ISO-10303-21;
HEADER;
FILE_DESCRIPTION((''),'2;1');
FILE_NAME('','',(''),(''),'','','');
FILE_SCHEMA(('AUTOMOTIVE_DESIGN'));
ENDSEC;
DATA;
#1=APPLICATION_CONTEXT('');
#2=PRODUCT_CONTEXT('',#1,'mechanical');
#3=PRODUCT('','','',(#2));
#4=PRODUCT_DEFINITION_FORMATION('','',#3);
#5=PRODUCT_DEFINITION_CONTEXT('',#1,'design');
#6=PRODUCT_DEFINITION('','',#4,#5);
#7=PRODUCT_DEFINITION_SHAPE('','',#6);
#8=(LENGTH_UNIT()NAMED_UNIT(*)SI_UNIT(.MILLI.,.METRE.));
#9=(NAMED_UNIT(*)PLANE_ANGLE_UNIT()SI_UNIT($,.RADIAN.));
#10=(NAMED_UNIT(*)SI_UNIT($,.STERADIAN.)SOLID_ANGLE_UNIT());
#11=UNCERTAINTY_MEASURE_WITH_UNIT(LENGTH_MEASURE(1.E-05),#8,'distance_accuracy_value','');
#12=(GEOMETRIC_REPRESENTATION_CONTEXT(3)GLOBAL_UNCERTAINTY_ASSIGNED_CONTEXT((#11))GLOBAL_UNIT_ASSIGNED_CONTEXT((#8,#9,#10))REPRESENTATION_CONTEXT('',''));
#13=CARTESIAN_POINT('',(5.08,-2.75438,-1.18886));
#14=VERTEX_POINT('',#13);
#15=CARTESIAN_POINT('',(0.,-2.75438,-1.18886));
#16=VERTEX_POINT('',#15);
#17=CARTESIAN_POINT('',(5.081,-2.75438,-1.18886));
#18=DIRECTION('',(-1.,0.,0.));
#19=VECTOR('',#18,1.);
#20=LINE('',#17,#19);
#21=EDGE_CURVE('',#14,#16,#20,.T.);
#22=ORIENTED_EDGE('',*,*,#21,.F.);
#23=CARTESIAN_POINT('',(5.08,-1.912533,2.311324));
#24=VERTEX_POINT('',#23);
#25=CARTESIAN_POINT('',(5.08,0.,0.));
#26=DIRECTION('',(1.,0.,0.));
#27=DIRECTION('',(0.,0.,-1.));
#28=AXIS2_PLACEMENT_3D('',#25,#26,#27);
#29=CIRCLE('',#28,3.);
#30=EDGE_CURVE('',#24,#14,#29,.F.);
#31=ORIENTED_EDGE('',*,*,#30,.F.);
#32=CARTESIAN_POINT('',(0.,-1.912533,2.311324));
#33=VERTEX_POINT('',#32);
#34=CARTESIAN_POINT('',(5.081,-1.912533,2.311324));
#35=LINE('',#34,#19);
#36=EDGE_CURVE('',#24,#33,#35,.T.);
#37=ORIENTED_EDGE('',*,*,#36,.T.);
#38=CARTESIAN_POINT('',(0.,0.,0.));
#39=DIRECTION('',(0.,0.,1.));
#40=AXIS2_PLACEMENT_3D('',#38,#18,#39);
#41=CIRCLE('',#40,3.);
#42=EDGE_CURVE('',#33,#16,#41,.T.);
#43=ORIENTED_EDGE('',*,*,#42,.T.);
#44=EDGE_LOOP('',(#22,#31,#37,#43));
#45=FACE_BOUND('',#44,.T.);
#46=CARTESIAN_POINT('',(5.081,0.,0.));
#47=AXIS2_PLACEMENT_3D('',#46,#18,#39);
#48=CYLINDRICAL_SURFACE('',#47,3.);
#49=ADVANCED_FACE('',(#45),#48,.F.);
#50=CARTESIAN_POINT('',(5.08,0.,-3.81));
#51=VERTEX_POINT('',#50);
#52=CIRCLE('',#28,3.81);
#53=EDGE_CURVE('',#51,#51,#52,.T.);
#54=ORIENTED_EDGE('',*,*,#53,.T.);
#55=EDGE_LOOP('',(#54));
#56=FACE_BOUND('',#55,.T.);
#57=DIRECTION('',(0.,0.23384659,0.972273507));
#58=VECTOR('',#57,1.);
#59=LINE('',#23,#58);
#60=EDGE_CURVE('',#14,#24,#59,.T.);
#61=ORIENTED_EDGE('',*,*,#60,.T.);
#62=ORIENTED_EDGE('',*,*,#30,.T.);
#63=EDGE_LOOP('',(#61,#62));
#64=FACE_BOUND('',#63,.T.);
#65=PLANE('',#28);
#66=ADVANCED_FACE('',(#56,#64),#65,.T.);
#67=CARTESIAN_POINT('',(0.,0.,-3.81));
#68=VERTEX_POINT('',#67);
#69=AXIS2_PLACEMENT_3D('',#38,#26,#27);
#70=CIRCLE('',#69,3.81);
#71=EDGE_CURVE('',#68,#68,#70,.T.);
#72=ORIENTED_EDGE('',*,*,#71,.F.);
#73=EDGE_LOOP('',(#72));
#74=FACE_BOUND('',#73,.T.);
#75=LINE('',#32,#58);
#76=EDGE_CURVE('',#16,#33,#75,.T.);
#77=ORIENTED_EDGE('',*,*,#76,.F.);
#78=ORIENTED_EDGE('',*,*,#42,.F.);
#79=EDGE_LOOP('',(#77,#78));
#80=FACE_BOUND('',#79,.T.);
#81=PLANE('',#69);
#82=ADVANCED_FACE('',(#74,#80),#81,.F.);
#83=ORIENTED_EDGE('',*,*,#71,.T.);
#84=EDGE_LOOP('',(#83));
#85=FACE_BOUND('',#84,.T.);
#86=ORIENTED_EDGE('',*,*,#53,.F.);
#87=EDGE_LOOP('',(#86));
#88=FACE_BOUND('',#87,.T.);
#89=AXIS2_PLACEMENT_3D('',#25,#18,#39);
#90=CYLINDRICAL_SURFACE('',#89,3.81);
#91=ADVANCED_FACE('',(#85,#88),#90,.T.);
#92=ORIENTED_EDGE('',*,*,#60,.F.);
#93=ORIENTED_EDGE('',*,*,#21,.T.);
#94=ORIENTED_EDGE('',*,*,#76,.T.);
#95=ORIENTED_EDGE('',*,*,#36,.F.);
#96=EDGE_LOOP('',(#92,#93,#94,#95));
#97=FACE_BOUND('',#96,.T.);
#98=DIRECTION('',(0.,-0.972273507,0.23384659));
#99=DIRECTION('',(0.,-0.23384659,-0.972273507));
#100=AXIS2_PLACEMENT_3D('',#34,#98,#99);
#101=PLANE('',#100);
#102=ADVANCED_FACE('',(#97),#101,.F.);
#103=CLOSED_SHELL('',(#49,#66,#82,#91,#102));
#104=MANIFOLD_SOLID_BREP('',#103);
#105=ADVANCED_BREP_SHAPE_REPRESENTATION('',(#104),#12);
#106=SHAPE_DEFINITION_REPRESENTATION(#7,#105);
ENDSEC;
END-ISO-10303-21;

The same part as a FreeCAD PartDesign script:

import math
import FreeCAD as App
import Part
import Sketcher
from FreeCAD import Vector

doc = App.newDocument("Part")
body = doc.addObject("PartDesign::Body", "Body")

# Sketch on YZ plane
sketch1 = body.newObject("Sketcher::SketchObject", "Sketch")
sketch1.AttachmentSupport = (doc.getObject("YZ_Plane"), [""])
sketch1.MapMode = "FlatFace"
sketch1.addGeometry(Part.Circle(Vector(0, 0, 0), Vector(0, 0, 1), 3.81), False)
sketch1.addConstraint(Sketcher.Constraint("Coincident", 0, 3, -1, 1))
sketch1.addConstraint(Sketcher.Constraint("Diameter", 0, 7.62))
pad1 = body.newObject("PartDesign::Pad", "Pad")
pad1.Profile = sketch1
pad1.Length = 5.08

# Sketch on YZ plane
sketch2 = body.newObject("Sketcher::SketchObject", "Sketch001")
sketch2.AttachmentSupport = (doc.getObject("YZ_Plane"), [""])
sketch2.MapMode = "FlatFace"
sketch2.addGeometry(Part.LineSegment(Vector(-2.75438, -1.18886, 0), Vector(-1.912533, 2.311324, 0)), False)
sketch2.addGeometry(Part.ArcOfCircle(Part.Circle(Vector(0, 0, 0), Vector(0, 0, 1), 3), math.radians(-156.653745), math.radians(129.606459)), False)
sketch2.addConstraint(Sketcher.Constraint("Coincident", 0, 1, 1, 1))
sketch2.addConstraint(Sketcher.Constraint("Coincident", 1, 2, 0, 2))
sketch2.addConstraint(Sketcher.Constraint("Coincident", 1, 3, -1, 1))
sketch2.addConstraint(Sketcher.Constraint("Radius", 1, 3.0))
sketch2.addConstraint(Sketcher.Constraint("Distance", 0, 3.6))
sketch2.addConstraint(Sketcher.Constraint("DistanceX", 0, 1, -1, 1, 2.75438))
pocket1 = body.newObject("PartDesign::Pocket", "Pocket")
pocket1.Profile = sketch2
pocket1.Type = "UpToFirst"
pocket1.Reversed = True

doc.recompute()
